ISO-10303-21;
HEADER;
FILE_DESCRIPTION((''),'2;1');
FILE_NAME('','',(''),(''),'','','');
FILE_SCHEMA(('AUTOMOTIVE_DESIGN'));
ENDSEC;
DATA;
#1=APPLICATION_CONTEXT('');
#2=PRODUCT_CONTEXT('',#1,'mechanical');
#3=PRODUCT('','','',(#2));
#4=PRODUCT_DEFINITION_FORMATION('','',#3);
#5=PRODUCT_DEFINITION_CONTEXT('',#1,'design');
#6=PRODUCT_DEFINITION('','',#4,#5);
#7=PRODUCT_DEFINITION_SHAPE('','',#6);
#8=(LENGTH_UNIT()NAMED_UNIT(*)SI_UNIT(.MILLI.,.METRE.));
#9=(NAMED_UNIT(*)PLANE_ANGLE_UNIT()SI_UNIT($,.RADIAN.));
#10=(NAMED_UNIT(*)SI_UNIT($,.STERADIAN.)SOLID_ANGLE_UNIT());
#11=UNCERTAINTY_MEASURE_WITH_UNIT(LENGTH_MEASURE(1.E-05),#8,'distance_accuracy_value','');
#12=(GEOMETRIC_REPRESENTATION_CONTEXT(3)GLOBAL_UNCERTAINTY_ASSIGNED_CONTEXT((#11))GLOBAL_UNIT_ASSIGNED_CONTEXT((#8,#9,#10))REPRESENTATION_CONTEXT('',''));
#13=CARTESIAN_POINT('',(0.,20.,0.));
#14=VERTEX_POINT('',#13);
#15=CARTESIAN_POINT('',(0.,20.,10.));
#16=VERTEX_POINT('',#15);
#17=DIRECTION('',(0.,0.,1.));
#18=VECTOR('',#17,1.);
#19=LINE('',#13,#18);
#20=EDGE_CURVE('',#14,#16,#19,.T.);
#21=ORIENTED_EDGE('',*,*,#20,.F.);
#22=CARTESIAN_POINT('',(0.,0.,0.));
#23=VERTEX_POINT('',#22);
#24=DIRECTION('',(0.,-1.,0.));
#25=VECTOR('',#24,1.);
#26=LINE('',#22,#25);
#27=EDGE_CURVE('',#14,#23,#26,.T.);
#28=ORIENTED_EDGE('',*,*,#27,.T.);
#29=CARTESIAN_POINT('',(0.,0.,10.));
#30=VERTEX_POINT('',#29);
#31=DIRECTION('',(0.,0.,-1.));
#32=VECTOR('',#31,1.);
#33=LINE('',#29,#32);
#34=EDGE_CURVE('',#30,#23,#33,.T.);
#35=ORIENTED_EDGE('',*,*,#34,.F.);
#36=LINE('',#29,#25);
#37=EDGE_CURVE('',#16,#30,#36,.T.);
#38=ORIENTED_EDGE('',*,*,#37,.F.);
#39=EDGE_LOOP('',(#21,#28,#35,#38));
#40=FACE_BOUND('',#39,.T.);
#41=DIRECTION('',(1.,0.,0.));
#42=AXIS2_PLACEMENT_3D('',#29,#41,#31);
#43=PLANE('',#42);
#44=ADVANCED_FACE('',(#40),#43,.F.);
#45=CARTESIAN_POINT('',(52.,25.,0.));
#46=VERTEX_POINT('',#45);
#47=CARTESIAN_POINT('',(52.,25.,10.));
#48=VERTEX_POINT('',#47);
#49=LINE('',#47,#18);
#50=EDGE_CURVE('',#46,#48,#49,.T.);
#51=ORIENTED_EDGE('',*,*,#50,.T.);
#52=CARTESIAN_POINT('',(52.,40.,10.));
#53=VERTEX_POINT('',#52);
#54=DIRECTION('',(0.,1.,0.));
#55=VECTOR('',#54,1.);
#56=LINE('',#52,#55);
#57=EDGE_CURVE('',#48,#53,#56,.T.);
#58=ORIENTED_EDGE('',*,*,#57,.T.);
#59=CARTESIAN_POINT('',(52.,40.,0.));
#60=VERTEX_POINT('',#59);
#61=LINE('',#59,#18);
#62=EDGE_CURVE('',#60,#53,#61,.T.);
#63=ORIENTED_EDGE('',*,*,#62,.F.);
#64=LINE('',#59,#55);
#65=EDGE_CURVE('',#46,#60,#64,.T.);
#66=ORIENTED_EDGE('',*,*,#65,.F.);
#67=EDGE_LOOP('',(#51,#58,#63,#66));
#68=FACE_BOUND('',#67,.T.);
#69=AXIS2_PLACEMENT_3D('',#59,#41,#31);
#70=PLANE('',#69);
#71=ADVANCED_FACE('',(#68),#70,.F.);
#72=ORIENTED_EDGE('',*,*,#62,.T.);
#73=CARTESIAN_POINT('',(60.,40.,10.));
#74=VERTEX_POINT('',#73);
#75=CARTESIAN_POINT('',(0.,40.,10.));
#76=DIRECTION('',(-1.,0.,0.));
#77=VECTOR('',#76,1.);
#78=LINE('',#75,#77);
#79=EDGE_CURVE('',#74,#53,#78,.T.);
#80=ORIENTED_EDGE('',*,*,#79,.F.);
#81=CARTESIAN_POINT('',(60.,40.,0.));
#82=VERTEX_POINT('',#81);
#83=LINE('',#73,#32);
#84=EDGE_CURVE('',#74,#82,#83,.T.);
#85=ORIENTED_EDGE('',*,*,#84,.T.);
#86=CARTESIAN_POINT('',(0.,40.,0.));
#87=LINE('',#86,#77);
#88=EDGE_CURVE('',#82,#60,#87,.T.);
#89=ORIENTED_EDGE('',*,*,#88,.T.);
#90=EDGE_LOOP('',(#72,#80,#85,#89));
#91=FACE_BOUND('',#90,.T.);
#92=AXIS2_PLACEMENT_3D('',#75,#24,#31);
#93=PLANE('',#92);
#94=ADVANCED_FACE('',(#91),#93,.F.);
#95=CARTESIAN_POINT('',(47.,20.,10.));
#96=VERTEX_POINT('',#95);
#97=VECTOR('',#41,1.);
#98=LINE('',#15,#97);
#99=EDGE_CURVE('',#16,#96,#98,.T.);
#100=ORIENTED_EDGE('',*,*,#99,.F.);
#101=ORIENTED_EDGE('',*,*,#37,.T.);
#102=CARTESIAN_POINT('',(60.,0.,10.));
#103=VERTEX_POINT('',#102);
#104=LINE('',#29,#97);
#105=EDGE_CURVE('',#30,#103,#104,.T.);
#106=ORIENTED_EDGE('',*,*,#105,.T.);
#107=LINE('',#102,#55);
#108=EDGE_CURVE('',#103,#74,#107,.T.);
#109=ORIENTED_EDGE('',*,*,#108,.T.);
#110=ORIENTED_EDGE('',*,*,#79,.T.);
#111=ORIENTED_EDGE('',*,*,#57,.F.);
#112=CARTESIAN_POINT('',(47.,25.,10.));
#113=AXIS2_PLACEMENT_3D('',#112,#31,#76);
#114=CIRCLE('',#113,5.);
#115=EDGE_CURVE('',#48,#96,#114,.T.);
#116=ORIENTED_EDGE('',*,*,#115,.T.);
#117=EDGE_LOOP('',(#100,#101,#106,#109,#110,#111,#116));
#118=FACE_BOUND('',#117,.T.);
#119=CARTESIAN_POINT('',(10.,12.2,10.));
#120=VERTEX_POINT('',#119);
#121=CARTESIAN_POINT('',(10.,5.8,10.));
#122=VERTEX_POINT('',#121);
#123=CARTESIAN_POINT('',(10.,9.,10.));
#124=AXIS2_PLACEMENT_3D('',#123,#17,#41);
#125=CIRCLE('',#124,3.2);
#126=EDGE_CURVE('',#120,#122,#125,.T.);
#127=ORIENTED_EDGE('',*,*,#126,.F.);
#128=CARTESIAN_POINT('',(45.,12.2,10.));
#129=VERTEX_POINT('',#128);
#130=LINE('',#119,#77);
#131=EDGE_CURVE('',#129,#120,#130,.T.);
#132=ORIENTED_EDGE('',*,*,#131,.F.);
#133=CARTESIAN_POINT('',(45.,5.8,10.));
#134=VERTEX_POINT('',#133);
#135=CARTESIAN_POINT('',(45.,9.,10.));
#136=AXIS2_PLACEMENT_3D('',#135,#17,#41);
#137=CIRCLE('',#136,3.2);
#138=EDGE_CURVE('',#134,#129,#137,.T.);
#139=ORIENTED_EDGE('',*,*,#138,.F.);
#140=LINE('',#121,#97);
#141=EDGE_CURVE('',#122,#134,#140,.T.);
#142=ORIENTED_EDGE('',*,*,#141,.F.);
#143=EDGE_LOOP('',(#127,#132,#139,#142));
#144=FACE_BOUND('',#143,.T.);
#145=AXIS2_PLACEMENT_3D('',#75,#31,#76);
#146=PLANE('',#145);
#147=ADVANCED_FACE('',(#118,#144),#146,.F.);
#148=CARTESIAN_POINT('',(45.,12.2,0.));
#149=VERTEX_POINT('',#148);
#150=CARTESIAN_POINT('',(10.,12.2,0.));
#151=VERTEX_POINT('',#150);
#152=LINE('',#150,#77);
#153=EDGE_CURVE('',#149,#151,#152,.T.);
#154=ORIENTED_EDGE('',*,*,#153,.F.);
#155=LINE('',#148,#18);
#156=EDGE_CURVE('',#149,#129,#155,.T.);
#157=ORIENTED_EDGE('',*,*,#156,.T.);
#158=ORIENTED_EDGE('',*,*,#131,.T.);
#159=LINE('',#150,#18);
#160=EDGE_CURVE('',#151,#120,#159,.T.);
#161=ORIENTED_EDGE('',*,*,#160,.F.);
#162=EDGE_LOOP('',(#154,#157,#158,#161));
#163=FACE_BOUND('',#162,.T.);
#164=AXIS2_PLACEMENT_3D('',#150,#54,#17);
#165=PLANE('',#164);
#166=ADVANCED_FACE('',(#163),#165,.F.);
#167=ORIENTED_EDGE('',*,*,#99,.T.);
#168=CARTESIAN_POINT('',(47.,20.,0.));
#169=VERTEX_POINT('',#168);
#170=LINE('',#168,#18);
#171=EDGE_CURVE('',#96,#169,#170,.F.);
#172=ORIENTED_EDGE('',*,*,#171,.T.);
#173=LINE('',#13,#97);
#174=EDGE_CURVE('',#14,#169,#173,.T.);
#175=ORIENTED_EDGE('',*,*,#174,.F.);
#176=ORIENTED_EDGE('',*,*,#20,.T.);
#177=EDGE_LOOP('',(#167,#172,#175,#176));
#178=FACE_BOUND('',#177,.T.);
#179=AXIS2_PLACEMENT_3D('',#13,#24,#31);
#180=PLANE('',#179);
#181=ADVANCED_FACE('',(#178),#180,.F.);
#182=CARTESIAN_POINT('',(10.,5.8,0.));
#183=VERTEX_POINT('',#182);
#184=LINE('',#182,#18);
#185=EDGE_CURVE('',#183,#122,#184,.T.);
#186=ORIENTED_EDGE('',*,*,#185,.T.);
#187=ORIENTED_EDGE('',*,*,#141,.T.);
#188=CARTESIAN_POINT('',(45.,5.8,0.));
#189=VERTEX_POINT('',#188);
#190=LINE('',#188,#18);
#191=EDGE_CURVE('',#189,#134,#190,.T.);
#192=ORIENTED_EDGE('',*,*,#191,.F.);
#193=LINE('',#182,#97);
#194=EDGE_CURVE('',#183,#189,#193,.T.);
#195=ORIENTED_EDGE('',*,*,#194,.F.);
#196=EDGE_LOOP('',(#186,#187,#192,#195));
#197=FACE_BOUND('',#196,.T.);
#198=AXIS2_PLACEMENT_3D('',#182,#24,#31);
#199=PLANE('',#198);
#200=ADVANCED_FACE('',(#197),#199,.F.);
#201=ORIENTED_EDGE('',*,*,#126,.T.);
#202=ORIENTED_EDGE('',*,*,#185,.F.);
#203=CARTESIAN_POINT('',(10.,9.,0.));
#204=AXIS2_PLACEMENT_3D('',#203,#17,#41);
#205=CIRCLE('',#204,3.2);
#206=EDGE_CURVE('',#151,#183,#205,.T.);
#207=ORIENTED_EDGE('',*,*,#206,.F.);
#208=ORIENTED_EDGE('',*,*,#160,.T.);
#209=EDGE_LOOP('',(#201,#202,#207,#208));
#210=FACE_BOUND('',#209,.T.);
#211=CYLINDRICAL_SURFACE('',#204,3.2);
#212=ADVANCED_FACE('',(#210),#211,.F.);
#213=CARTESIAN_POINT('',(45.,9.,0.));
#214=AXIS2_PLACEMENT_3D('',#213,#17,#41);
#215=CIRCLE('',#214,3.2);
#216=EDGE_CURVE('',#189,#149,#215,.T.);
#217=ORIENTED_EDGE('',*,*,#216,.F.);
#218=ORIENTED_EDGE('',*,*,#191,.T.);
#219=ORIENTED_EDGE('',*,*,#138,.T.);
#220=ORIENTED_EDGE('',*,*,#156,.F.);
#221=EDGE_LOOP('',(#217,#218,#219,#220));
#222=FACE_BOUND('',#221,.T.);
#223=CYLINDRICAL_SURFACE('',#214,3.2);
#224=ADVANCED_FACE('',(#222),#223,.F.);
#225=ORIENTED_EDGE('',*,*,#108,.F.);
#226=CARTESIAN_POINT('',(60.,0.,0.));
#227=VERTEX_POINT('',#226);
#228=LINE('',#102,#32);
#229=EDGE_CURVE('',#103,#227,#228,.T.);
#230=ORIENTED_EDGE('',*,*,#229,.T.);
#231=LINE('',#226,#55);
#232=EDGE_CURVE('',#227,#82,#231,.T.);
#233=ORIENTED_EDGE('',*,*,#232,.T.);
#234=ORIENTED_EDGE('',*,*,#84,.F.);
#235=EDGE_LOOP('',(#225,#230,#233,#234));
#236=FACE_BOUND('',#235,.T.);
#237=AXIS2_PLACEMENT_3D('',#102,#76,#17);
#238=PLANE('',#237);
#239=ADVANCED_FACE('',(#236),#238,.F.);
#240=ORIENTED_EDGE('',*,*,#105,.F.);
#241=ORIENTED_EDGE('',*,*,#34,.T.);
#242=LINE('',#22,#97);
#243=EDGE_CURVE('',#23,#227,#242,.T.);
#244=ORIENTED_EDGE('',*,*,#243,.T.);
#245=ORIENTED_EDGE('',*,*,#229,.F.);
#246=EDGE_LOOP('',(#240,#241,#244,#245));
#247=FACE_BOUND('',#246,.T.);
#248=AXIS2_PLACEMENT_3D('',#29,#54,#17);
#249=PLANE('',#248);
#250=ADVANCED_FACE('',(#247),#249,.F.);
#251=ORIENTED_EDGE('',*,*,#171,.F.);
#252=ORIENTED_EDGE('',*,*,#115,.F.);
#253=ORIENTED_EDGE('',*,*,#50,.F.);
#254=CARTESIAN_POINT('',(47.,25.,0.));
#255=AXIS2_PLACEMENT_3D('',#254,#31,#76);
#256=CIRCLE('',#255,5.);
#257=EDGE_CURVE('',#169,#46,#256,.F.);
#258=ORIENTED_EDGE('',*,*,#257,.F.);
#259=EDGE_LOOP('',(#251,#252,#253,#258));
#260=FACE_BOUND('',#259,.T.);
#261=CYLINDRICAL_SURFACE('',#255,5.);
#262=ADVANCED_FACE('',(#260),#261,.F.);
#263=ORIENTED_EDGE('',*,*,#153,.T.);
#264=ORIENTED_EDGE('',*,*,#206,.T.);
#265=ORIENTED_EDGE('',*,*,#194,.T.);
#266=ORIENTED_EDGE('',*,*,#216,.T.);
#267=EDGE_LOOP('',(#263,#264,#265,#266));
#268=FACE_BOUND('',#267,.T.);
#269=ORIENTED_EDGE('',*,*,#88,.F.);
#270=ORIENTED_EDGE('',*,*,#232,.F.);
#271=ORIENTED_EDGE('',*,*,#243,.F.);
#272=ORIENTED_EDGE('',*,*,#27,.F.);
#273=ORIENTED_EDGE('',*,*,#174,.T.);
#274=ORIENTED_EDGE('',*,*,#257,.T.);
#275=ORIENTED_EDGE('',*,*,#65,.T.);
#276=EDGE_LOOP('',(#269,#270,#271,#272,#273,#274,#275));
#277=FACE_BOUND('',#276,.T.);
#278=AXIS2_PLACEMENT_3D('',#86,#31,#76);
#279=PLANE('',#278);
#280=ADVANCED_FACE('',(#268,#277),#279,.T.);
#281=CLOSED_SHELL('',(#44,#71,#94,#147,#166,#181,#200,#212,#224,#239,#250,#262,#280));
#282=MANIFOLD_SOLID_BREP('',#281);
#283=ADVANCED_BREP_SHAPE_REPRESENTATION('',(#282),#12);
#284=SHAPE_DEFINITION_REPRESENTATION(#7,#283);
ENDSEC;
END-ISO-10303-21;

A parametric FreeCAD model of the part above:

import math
import FreeCAD as App
import Part
import Sketcher
Q = App.Units.Quantity


def edges_at(feature, points):
    """Names of the edges that pass closest to the given points."""
    edges = feature.Shape.Edges
    near = lambda p: min(range(len(edges)), key=lambda i: edges[i].distToShape(Part.Vertex(*p))[0])
    return sorted({f"Edge{near(p) + 1}" for p in points})

doc = App.newDocument("Part")
body = doc.addObject("PartDesign::Body", "Body")

sketch1 = body.newObject("Sketcher::SketchObject", "Sketch")
sketch1.AttachmentSupport = (doc.getObject("XY_Plane"), [""])
sketch1.MapMode = "FlatFace"
sketch1.addGeometry([
    Part.LineSegment(App.Vector(0, 40, 0), App.Vector(0, 0, 0)),
    Part.LineSegment(App.Vector(0, 0, 0), App.Vector(60, 0, 0)),
    Part.LineSegment(App.Vector(60, 0, 0), App.Vector(60, 40, 0)),
    Part.LineSegment(App.Vector(60, 40, 0), App.Vector(0, 40, 0)),
], False)
sketch1.addConstraint([
    Sketcher.Constraint("Coincident", 0, 2, 1, 1),
    Sketcher.Constraint("Coincident", 1, 2, 2, 1),
    Sketcher.Constraint("Coincident", 2, 2, 3, 1),
    Sketcher.Constraint("Coincident", 3, 2, 0, 1),
    Sketcher.Constraint("Vertical", 0),
    Sketcher.Constraint("Horizontal", 1),
    Sketcher.Constraint("Vertical", 2),
    Sketcher.Constraint("Horizontal", 3),
    Sketcher.Constraint("Coincident", 0, 2, -1, 1),
    Sketcher.Constraint("DistanceX", 1, 1, 1, 2, Q("60 mm")),
    Sketcher.Constraint("DistanceY", 0, 2, 0, 1, Q("40 mm")),
])
pad1 = body.newObject("PartDesign::Pad", "Pad")
pad1.Profile = sketch1
pad1.Length = 10

sketch2 = body.newObject("Sketcher::SketchObject", "Sketch001")
sketch2.AttachmentSupport = (doc.getObject("XY_Plane"), [""])
sketch2.MapMode = "FlatFace"
sketch2.AttachmentOffset = App.Placement(App.Vector(0, 0, 10), App.Rotation())
sketch2.addGeometry([
    Part.LineSegment(App.Vector(0, 40, 0), App.Vector(0, 20, 0)),
    Part.LineSegment(App.Vector(0, 20, 0), App.Vector(52, 20, 0)),
    Part.LineSegment(App.Vector(52, 20, 0), App.Vector(52, 40, 0)),
    Part.LineSegment(App.Vector(52, 40, 0), App.Vector(0, 40, 0)),
], False)
sketch2.addConstraint([
    Sketcher.Constraint("Coincident", 0, 2, 1, 1),
    Sketcher.Constraint("Coincident", 1, 2, 2, 1),
    Sketcher.Constraint("Coincident", 2, 2, 3, 1),
    Sketcher.Constraint("Coincident", 3, 2, 0, 1),
    Sketcher.Constraint("Vertical", 0),
    Sketcher.Constraint("Horizontal", 1),
    Sketcher.Constraint("Vertical", 2),
    Sketcher.Constraint("Horizontal", 3),
    Sketcher.Constraint("PointOnObject", 0, 2, -2),
    Sketcher.Constraint("DistanceX", 1, 1, 1, 2, Q("52 mm")),
    Sketcher.Constraint("DistanceY", 0, 2, 0, 1, Q("20 mm")),
    Sketcher.Constraint("DistanceY", -1, 1, 0, 2, Q("20 mm")),
])
pocket1 = body.newObject("PartDesign::Pocket", "Pocket")
pocket1.Profile = sketch2
pocket1.Type = "ThroughAll"
doc.recompute()

fillet = body.newObject("PartDesign::Fillet", "Fillet")
fillet.Base = (pocket1, edges_at(pocket1, [(52, 20, 5)]))
fillet.Radius = 5

sketch3 = body.newObject("Sketcher::SketchObject", "Sketch002")
sketch3.AttachmentSupport = (doc.getObject("XY_Plane"), [""])
sketch3.MapMode = "FlatFace"
sketch3.AttachmentOffset = App.Placement(App.Vector(0, 0, 10), App.Rotation())
sketch3.addGeometry([
    Part.LineSegment(App.Vector(45, 12.2, 0), App.Vector(10, 12.2, 0)),
    Part.ArcOfCircle(Part.Circle(App.Vector(10, 9, 0), App.Vector(0, 0, 1), 3.2), math.radians(90), math.radians(270)),
    Part.LineSegment(App.Vector(10, 5.8, 0), App.Vector(45, 5.8, 0)),
    Part.ArcOfCircle(Part.Circle(App.Vector(45, 9, 0), App.Vector(0, 0, 1), 3.2), math.radians(-90), math.radians(90)),
], False)
sketch3.addConstraint([
    Sketcher.Constraint("Tangent", 0, 2, 1, 1),
    Sketcher.Constraint("Tangent", 1, 2, 2, 1),
    Sketcher.Constraint("Tangent", 2, 2, 3, 1),
    Sketcher.Constraint("Tangent", 3, 2, 0, 1),
    Sketcher.Constraint("Horizontal", 0),
    Sketcher.Constraint("Horizontal", 2),
    Sketcher.Constraint("Radius", 1, Q("3.2 mm")),
    Sketcher.Constraint("DistanceX", 0, 2, 0, 1, Q("35 mm")),
    Sketcher.Constraint("DistanceX", -1, 1, 1, 3, Q("10 mm")),
    Sketcher.Constraint("DistanceY", -1, 1, 1, 3, Q("9 mm")),
])
pocket2 = body.newObject("PartDesign::Pocket", "Pocket001")
pocket2.Profile = sketch3
pocket2.Type = "ThroughAll"

doc.recompute()
